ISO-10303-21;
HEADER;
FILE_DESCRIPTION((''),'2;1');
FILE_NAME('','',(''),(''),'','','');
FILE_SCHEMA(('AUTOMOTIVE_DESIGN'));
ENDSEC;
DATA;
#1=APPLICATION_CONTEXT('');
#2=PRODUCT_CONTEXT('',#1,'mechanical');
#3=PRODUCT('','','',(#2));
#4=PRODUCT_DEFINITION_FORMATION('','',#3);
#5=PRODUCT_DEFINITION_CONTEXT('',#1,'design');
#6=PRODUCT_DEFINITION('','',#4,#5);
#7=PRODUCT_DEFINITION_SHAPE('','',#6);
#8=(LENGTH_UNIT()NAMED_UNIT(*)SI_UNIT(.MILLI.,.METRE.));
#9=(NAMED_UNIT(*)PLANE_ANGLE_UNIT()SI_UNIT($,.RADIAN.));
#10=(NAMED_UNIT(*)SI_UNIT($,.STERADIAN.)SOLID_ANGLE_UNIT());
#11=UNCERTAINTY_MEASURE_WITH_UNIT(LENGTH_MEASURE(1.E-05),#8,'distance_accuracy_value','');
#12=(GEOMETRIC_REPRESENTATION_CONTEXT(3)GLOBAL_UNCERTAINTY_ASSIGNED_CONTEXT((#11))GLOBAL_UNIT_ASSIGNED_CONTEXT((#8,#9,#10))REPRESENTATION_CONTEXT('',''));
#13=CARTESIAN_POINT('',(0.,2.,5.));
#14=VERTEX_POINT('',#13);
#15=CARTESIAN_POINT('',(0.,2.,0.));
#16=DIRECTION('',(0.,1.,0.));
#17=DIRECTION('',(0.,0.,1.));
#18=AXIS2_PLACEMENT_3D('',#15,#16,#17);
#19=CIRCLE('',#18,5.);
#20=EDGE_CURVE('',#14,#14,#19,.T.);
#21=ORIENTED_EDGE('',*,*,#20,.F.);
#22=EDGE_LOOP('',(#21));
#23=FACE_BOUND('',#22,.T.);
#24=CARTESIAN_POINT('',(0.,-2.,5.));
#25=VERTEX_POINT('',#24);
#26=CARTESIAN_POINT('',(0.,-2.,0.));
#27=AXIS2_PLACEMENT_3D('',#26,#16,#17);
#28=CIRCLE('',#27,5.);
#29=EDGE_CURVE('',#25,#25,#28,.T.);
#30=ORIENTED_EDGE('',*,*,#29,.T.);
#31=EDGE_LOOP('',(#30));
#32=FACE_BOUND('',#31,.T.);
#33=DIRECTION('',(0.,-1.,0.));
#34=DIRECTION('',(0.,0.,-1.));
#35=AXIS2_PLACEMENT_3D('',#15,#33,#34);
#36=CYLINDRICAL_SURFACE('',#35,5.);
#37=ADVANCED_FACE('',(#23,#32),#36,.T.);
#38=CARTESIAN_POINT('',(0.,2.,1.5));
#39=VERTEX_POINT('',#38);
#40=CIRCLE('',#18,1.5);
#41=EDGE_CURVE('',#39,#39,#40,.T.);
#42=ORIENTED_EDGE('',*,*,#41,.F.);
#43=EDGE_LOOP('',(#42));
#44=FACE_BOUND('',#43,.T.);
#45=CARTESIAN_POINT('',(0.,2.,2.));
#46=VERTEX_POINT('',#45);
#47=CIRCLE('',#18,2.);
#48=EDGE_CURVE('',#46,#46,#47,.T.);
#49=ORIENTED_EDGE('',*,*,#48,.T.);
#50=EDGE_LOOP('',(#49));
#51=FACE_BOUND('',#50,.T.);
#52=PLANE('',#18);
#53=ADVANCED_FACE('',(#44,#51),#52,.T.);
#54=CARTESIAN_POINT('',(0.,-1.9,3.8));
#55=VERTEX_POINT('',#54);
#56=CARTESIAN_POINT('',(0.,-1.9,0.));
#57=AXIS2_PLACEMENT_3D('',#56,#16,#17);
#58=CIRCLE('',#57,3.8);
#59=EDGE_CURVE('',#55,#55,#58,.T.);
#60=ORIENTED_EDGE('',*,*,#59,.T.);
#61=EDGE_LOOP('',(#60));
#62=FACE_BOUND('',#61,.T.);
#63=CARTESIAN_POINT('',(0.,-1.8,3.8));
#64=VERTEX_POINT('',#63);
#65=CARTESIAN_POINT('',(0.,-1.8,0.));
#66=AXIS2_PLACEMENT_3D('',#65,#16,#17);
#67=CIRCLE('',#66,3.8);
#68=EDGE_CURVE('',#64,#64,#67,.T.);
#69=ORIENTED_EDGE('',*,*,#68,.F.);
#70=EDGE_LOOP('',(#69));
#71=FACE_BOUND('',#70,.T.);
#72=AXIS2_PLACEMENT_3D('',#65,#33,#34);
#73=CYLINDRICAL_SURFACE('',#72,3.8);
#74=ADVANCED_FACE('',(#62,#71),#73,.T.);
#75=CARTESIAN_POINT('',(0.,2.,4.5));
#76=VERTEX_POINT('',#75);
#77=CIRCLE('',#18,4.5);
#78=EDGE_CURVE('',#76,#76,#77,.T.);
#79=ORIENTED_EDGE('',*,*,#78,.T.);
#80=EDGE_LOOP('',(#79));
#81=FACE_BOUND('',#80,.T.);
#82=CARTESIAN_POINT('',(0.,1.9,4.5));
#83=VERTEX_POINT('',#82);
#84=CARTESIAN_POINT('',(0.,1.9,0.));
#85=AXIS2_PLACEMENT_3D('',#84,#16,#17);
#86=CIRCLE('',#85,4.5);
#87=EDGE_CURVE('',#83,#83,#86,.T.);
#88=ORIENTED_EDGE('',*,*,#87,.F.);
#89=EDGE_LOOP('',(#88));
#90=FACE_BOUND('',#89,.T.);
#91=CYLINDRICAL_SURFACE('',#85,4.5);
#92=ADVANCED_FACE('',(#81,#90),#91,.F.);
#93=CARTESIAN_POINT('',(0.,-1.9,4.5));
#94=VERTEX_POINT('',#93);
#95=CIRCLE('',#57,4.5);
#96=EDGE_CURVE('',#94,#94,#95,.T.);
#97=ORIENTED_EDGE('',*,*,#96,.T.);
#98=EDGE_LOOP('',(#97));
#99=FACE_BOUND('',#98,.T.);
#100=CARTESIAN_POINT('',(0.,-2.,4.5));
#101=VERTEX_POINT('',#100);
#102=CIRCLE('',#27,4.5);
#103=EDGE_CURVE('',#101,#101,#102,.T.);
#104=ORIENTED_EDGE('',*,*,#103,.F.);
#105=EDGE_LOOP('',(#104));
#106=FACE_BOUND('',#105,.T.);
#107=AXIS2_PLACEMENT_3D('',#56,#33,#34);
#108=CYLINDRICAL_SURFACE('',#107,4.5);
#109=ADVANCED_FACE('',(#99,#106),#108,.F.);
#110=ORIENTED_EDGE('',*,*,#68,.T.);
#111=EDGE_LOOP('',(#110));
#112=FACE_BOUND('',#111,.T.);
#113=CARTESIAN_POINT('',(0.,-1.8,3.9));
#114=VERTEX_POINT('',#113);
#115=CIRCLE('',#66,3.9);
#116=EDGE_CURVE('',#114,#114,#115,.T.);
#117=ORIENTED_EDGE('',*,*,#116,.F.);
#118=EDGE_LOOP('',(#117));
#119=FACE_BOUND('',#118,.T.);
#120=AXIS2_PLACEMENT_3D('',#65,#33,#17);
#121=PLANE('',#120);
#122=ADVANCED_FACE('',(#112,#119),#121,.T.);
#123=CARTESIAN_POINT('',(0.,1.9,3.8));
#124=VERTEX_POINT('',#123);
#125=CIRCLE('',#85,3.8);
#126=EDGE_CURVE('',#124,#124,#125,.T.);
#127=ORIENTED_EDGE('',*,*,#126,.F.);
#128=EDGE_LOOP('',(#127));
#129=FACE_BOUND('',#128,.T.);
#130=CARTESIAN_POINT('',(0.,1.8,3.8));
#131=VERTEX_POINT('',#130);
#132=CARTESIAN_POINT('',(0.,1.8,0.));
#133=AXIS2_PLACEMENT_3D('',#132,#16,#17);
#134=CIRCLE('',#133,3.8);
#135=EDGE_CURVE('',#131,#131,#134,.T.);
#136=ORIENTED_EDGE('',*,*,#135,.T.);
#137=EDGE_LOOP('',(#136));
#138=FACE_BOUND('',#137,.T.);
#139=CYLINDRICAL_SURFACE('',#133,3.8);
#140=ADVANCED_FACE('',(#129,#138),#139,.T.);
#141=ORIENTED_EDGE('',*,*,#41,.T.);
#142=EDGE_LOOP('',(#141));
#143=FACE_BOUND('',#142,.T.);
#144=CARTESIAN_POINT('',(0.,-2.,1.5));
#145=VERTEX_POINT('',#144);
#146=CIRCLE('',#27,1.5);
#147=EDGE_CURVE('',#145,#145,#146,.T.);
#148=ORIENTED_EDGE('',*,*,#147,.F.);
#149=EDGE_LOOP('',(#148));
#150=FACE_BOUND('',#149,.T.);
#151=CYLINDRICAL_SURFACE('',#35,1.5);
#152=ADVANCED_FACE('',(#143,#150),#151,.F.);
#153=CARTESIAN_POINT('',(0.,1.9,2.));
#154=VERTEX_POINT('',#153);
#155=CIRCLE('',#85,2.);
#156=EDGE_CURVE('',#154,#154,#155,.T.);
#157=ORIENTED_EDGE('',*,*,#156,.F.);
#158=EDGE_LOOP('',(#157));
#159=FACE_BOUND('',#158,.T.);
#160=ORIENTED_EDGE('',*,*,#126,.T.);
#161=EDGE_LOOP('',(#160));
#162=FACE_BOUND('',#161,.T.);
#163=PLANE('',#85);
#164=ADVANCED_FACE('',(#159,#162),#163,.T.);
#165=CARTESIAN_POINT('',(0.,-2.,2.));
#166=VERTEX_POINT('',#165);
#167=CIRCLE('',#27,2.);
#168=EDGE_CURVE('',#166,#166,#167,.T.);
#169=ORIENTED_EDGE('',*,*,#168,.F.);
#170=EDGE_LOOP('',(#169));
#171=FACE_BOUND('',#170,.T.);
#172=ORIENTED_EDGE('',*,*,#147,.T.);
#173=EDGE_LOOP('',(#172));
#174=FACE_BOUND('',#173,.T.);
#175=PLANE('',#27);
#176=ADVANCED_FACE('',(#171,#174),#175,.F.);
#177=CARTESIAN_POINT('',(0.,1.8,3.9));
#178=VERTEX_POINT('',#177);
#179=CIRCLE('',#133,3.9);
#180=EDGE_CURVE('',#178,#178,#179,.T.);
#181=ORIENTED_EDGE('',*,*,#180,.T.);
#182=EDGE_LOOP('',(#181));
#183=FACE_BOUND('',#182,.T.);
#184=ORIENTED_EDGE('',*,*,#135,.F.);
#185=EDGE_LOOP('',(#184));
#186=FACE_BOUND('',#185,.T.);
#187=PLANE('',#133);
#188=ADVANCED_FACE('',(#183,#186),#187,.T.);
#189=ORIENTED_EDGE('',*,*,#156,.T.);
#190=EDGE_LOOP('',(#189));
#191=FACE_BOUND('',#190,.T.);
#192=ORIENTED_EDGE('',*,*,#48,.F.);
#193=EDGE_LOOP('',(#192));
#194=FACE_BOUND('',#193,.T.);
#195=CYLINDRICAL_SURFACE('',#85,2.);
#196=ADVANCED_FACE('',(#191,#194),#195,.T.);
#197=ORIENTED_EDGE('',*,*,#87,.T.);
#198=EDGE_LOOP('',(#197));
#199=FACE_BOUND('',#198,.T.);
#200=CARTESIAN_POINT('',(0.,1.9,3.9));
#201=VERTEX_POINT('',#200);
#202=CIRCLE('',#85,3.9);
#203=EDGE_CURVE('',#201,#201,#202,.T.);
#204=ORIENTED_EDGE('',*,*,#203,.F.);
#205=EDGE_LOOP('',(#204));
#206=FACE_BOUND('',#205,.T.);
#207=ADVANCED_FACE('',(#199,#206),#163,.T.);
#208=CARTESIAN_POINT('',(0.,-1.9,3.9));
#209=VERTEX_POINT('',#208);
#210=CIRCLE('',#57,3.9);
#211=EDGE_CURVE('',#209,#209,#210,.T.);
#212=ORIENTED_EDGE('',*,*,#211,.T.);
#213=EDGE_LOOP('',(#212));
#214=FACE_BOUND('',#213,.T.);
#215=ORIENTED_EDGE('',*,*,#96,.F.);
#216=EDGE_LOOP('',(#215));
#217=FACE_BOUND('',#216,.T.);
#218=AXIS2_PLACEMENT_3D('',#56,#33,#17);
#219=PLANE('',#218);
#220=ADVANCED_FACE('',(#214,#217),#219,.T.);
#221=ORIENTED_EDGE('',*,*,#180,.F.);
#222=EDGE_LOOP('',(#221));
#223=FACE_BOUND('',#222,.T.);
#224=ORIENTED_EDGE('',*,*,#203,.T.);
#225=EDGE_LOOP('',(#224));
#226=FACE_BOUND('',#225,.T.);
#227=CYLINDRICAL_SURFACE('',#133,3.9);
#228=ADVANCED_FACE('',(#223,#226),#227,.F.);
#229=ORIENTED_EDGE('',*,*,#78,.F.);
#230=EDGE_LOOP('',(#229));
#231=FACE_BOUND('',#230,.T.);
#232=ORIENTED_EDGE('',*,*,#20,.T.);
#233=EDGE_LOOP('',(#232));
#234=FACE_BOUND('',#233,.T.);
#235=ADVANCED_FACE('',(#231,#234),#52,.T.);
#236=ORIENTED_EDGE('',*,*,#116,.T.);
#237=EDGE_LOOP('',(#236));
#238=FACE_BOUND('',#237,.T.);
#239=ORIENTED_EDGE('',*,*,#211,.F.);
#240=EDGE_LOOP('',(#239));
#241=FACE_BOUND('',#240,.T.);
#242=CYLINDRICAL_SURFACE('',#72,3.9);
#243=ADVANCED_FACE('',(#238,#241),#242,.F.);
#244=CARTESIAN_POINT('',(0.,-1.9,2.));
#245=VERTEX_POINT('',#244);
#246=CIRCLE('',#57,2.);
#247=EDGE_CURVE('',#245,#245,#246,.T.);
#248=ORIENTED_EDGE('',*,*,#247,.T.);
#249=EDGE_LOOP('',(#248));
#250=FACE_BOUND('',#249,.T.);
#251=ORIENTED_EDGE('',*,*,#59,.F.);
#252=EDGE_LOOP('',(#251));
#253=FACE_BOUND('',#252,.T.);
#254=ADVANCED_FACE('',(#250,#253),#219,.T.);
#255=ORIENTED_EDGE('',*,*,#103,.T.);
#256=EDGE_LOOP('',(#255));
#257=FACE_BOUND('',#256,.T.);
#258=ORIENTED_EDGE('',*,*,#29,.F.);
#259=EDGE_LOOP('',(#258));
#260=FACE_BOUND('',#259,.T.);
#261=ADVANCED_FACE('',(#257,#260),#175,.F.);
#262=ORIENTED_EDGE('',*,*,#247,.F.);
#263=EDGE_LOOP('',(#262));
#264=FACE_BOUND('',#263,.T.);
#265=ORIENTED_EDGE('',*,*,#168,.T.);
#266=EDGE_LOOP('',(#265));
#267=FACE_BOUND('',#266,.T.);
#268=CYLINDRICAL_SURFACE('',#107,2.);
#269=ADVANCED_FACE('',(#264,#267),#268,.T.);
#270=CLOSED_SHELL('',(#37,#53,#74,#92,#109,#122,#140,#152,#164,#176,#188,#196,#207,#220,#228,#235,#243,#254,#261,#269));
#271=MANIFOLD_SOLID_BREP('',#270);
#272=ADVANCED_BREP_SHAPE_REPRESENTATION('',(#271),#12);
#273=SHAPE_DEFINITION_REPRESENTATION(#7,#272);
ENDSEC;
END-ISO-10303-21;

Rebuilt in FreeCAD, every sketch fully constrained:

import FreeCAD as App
import Part
import Sketcher

V = App.Vector

doc = App.newDocument("Part")
body = doc.addObject("PartDesign::Body", "Body")

# Sketch on XZ plane
sketch1 = body.newObject("Sketcher::SketchObject", "Sketch")
sketch1.AttachmentSupport = (doc.getObject("XZ_Plane"), [""])
sketch1.MapMode = "FlatFace"
sketch1.addGeometry([
    Part.Circle(V(0, 0, 0), V(0, 0, 1), 5),
    Part.Circle(V(0, 0, 0), V(0, 0, 1), 1.5),
], False)
sketch1.addConstraint([
    Sketcher.Constraint("Coincident", 0, 3, -1, 1),
    Sketcher.Constraint("Coincident", 1, 3, -1, 1),
    Sketcher.Constraint("Diameter", 0, 10.0),
    Sketcher.Constraint("Diameter", 1, 3.0),
])
pad1 = body.newObject("PartDesign::Pad", "Pad")
pad1.Profile = sketch1
pad1.Length = 4
pad1.Midplane = True

# Sketch on XZ plane
sketch2 = body.newObject("Sketcher::SketchObject", "Sketch001")
sketch2.AttachmentSupport = (doc.getObject("XZ_Plane"), [""])
sketch2.MapMode = "FlatFace"
sketch2.AttachmentOffset = App.Placement(V(0, 0, -2), App.Rotation())
sketch2.addGeometry([
    Part.Circle(V(0, 0, 0), V(0, 0, 1), 4.5),
    Part.Circle(V(0, 0, 0), V(0, 0, 1), 2),
], False)
sketch2.addConstraint([
    Sketcher.Constraint("Coincident", 0, 3, -1, 1),
    Sketcher.Constraint("Coincident", 1, 3, -1, 1),
    Sketcher.Constraint("Diameter", 0, 9.0),
    Sketcher.Constraint("Diameter", 1, 4.0),
])
pocket1 = body.newObject("PartDesign::Pocket", "Pocket")
pocket1.Profile = sketch2
pocket1.Length = 0.1
pocket1.Reversed = True

# Sketch on XZ plane
sketch3 = body.newObject("Sketcher::SketchObject", "Sketch002")
sketch3.AttachmentSupport = (doc.getObject("XZ_Plane"), [""])
sketch3.MapMode = "FlatFace"
sketch3.AttachmentOffset = App.Placement(V(0, 0, -1.9), App.Rotation())
sketch3.addGeometry([
    Part.Circle(V(0, 0, 0), V(0, 0, 1), 3.9),
    Part.Circle(V(0, 0, 0), V(0, 0, 1), 3.8),
], False)
sketch3.addConstraint([
    Sketcher.Constraint("Coincident", 0, 3, -1, 1),
    Sketcher.Constraint("Coincident", 1, 3, -1, 1),
    Sketcher.Constraint("Diameter", 0, 7.8),
    Sketcher.Constraint("Diameter", 1, 7.6),
])
pocket2 = body.newObject("PartDesign::Pocket", "Pocket001")
pocket2.Profile = sketch3
pocket2.Length = 0.1
pocket2.Reversed = True
doc.recompute()

mirrored = body.newObject("PartDesign::Mirrored", "Mirrored")
mirrored.Originals = [pocket1, pocket2]
mirrored.MirrorPlane = (doc.getObject("XZ_Plane"), [""])
body.Tip = mirrored

doc.recompute()
